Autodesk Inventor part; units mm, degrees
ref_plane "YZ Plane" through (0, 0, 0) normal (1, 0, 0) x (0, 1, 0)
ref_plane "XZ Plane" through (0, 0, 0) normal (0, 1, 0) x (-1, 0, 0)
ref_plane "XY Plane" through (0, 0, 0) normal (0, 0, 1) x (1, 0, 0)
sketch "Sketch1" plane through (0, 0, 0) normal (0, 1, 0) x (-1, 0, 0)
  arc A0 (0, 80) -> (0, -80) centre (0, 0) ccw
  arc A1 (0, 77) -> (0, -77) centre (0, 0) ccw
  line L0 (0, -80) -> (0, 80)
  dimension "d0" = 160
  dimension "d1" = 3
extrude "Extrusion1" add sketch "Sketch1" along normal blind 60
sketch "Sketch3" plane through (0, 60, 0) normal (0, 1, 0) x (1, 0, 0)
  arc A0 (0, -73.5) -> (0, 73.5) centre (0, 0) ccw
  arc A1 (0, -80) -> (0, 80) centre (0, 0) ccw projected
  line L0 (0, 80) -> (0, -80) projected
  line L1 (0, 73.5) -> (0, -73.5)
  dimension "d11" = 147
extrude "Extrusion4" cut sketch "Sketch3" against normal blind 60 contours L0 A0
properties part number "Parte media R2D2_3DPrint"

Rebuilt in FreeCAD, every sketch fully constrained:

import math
import FreeCAD as App
import Part
import Sketcher
from FreeCAD import Vector

doc = App.newDocument("Part")
body = doc.addObject("PartDesign::Body", "Body")

# Sketch on XZ plane
sketch1 = doc.addObject("Sketcher::SketchObject", "Sketch")
body.addObject(sketch1)
sketch1.AttachmentSupport = (doc.XZ_Plane, [""])
sketch1.MapMode = "FlatFace"
sketch1.addGeometry(Part.ArcOfCircle(Part.Circle(Vector(0, 0, 0), Vector(0, 0, 1), 80), math.radians(-90), math.radians(90)), False)
sketch1.addGeometry(Part.LineSegment(Vector(0, -80, 0), Vector(0, 80, 0)), False)
sketch1.addConstraint(Sketcher.Constraint("Coincident", 0, 1, 1, 1))
sketch1.addConstraint(Sketcher.Constraint("Coincident", 1, 2, 0, 2))
sketch1.addConstraint(Sketcher.Constraint("Vertical", 1))
sketch1.addConstraint(Sketcher.Constraint("Coincident", 0, 3, -1, 1))
sketch1.addConstraint(Sketcher.Constraint("PointOnObject", 0, 1, -2))
sketch1.addConstraint(Sketcher.Constraint("Radius", 0, 80.0))
pad1 = doc.addObject("PartDesign::Pad", "Pad")
body.addObject(pad1)
pad1.Profile = sketch1
pad1.Length = 60
pad1.Reversed = True

# Sketch on XZ plane
sketch2 = doc.addObject("Sketcher::SketchObject", "Sketch001")
body.addObject(sketch2)
sketch2.AttachmentSupport = (doc.XZ_Plane, [""])
sketch2.MapMode = "FlatFace"
sketch2.AttachmentOffset = App.Placement(Vector(0, 0, -60), App.Rotation())
sketch2.addGeometry(Part.LineSegment(Vector(0, -74, 0), Vector(0, 74, 0)), False)
sketch2.addGeometry(Part.ArcOfCircle(Part.Circle(Vector(0, 0, 0), Vector(0, 0, 1), 74), math.radians(-90), math.radians(90)), False)
sketch2.addConstraint(Sketcher.Constraint("Coincident", 0, 1, 1, 1))
sketch2.addConstraint(Sketcher.Constraint("Coincident", 1, 2, 0, 2))
sketch2.addConstraint(Sketcher.Constraint("Vertical", 0))
sketch2.addConstraint(Sketcher.Constraint("Coincident", 1, 3, -1, 1))
sketch2.addConstraint(Sketcher.Constraint("PointOnObject", 0, 1, -2))
sketch2.addConstraint(Sketcher.Constraint("Radius", 1, 73.5))
pocket1 = doc.addObject("PartDesign::Pocket", "Pocket")
body.addObject(pocket1)
pocket1.Profile = sketch2
pocket1.Length = 60
pocket1.Reversed = True

doc.recompute()
